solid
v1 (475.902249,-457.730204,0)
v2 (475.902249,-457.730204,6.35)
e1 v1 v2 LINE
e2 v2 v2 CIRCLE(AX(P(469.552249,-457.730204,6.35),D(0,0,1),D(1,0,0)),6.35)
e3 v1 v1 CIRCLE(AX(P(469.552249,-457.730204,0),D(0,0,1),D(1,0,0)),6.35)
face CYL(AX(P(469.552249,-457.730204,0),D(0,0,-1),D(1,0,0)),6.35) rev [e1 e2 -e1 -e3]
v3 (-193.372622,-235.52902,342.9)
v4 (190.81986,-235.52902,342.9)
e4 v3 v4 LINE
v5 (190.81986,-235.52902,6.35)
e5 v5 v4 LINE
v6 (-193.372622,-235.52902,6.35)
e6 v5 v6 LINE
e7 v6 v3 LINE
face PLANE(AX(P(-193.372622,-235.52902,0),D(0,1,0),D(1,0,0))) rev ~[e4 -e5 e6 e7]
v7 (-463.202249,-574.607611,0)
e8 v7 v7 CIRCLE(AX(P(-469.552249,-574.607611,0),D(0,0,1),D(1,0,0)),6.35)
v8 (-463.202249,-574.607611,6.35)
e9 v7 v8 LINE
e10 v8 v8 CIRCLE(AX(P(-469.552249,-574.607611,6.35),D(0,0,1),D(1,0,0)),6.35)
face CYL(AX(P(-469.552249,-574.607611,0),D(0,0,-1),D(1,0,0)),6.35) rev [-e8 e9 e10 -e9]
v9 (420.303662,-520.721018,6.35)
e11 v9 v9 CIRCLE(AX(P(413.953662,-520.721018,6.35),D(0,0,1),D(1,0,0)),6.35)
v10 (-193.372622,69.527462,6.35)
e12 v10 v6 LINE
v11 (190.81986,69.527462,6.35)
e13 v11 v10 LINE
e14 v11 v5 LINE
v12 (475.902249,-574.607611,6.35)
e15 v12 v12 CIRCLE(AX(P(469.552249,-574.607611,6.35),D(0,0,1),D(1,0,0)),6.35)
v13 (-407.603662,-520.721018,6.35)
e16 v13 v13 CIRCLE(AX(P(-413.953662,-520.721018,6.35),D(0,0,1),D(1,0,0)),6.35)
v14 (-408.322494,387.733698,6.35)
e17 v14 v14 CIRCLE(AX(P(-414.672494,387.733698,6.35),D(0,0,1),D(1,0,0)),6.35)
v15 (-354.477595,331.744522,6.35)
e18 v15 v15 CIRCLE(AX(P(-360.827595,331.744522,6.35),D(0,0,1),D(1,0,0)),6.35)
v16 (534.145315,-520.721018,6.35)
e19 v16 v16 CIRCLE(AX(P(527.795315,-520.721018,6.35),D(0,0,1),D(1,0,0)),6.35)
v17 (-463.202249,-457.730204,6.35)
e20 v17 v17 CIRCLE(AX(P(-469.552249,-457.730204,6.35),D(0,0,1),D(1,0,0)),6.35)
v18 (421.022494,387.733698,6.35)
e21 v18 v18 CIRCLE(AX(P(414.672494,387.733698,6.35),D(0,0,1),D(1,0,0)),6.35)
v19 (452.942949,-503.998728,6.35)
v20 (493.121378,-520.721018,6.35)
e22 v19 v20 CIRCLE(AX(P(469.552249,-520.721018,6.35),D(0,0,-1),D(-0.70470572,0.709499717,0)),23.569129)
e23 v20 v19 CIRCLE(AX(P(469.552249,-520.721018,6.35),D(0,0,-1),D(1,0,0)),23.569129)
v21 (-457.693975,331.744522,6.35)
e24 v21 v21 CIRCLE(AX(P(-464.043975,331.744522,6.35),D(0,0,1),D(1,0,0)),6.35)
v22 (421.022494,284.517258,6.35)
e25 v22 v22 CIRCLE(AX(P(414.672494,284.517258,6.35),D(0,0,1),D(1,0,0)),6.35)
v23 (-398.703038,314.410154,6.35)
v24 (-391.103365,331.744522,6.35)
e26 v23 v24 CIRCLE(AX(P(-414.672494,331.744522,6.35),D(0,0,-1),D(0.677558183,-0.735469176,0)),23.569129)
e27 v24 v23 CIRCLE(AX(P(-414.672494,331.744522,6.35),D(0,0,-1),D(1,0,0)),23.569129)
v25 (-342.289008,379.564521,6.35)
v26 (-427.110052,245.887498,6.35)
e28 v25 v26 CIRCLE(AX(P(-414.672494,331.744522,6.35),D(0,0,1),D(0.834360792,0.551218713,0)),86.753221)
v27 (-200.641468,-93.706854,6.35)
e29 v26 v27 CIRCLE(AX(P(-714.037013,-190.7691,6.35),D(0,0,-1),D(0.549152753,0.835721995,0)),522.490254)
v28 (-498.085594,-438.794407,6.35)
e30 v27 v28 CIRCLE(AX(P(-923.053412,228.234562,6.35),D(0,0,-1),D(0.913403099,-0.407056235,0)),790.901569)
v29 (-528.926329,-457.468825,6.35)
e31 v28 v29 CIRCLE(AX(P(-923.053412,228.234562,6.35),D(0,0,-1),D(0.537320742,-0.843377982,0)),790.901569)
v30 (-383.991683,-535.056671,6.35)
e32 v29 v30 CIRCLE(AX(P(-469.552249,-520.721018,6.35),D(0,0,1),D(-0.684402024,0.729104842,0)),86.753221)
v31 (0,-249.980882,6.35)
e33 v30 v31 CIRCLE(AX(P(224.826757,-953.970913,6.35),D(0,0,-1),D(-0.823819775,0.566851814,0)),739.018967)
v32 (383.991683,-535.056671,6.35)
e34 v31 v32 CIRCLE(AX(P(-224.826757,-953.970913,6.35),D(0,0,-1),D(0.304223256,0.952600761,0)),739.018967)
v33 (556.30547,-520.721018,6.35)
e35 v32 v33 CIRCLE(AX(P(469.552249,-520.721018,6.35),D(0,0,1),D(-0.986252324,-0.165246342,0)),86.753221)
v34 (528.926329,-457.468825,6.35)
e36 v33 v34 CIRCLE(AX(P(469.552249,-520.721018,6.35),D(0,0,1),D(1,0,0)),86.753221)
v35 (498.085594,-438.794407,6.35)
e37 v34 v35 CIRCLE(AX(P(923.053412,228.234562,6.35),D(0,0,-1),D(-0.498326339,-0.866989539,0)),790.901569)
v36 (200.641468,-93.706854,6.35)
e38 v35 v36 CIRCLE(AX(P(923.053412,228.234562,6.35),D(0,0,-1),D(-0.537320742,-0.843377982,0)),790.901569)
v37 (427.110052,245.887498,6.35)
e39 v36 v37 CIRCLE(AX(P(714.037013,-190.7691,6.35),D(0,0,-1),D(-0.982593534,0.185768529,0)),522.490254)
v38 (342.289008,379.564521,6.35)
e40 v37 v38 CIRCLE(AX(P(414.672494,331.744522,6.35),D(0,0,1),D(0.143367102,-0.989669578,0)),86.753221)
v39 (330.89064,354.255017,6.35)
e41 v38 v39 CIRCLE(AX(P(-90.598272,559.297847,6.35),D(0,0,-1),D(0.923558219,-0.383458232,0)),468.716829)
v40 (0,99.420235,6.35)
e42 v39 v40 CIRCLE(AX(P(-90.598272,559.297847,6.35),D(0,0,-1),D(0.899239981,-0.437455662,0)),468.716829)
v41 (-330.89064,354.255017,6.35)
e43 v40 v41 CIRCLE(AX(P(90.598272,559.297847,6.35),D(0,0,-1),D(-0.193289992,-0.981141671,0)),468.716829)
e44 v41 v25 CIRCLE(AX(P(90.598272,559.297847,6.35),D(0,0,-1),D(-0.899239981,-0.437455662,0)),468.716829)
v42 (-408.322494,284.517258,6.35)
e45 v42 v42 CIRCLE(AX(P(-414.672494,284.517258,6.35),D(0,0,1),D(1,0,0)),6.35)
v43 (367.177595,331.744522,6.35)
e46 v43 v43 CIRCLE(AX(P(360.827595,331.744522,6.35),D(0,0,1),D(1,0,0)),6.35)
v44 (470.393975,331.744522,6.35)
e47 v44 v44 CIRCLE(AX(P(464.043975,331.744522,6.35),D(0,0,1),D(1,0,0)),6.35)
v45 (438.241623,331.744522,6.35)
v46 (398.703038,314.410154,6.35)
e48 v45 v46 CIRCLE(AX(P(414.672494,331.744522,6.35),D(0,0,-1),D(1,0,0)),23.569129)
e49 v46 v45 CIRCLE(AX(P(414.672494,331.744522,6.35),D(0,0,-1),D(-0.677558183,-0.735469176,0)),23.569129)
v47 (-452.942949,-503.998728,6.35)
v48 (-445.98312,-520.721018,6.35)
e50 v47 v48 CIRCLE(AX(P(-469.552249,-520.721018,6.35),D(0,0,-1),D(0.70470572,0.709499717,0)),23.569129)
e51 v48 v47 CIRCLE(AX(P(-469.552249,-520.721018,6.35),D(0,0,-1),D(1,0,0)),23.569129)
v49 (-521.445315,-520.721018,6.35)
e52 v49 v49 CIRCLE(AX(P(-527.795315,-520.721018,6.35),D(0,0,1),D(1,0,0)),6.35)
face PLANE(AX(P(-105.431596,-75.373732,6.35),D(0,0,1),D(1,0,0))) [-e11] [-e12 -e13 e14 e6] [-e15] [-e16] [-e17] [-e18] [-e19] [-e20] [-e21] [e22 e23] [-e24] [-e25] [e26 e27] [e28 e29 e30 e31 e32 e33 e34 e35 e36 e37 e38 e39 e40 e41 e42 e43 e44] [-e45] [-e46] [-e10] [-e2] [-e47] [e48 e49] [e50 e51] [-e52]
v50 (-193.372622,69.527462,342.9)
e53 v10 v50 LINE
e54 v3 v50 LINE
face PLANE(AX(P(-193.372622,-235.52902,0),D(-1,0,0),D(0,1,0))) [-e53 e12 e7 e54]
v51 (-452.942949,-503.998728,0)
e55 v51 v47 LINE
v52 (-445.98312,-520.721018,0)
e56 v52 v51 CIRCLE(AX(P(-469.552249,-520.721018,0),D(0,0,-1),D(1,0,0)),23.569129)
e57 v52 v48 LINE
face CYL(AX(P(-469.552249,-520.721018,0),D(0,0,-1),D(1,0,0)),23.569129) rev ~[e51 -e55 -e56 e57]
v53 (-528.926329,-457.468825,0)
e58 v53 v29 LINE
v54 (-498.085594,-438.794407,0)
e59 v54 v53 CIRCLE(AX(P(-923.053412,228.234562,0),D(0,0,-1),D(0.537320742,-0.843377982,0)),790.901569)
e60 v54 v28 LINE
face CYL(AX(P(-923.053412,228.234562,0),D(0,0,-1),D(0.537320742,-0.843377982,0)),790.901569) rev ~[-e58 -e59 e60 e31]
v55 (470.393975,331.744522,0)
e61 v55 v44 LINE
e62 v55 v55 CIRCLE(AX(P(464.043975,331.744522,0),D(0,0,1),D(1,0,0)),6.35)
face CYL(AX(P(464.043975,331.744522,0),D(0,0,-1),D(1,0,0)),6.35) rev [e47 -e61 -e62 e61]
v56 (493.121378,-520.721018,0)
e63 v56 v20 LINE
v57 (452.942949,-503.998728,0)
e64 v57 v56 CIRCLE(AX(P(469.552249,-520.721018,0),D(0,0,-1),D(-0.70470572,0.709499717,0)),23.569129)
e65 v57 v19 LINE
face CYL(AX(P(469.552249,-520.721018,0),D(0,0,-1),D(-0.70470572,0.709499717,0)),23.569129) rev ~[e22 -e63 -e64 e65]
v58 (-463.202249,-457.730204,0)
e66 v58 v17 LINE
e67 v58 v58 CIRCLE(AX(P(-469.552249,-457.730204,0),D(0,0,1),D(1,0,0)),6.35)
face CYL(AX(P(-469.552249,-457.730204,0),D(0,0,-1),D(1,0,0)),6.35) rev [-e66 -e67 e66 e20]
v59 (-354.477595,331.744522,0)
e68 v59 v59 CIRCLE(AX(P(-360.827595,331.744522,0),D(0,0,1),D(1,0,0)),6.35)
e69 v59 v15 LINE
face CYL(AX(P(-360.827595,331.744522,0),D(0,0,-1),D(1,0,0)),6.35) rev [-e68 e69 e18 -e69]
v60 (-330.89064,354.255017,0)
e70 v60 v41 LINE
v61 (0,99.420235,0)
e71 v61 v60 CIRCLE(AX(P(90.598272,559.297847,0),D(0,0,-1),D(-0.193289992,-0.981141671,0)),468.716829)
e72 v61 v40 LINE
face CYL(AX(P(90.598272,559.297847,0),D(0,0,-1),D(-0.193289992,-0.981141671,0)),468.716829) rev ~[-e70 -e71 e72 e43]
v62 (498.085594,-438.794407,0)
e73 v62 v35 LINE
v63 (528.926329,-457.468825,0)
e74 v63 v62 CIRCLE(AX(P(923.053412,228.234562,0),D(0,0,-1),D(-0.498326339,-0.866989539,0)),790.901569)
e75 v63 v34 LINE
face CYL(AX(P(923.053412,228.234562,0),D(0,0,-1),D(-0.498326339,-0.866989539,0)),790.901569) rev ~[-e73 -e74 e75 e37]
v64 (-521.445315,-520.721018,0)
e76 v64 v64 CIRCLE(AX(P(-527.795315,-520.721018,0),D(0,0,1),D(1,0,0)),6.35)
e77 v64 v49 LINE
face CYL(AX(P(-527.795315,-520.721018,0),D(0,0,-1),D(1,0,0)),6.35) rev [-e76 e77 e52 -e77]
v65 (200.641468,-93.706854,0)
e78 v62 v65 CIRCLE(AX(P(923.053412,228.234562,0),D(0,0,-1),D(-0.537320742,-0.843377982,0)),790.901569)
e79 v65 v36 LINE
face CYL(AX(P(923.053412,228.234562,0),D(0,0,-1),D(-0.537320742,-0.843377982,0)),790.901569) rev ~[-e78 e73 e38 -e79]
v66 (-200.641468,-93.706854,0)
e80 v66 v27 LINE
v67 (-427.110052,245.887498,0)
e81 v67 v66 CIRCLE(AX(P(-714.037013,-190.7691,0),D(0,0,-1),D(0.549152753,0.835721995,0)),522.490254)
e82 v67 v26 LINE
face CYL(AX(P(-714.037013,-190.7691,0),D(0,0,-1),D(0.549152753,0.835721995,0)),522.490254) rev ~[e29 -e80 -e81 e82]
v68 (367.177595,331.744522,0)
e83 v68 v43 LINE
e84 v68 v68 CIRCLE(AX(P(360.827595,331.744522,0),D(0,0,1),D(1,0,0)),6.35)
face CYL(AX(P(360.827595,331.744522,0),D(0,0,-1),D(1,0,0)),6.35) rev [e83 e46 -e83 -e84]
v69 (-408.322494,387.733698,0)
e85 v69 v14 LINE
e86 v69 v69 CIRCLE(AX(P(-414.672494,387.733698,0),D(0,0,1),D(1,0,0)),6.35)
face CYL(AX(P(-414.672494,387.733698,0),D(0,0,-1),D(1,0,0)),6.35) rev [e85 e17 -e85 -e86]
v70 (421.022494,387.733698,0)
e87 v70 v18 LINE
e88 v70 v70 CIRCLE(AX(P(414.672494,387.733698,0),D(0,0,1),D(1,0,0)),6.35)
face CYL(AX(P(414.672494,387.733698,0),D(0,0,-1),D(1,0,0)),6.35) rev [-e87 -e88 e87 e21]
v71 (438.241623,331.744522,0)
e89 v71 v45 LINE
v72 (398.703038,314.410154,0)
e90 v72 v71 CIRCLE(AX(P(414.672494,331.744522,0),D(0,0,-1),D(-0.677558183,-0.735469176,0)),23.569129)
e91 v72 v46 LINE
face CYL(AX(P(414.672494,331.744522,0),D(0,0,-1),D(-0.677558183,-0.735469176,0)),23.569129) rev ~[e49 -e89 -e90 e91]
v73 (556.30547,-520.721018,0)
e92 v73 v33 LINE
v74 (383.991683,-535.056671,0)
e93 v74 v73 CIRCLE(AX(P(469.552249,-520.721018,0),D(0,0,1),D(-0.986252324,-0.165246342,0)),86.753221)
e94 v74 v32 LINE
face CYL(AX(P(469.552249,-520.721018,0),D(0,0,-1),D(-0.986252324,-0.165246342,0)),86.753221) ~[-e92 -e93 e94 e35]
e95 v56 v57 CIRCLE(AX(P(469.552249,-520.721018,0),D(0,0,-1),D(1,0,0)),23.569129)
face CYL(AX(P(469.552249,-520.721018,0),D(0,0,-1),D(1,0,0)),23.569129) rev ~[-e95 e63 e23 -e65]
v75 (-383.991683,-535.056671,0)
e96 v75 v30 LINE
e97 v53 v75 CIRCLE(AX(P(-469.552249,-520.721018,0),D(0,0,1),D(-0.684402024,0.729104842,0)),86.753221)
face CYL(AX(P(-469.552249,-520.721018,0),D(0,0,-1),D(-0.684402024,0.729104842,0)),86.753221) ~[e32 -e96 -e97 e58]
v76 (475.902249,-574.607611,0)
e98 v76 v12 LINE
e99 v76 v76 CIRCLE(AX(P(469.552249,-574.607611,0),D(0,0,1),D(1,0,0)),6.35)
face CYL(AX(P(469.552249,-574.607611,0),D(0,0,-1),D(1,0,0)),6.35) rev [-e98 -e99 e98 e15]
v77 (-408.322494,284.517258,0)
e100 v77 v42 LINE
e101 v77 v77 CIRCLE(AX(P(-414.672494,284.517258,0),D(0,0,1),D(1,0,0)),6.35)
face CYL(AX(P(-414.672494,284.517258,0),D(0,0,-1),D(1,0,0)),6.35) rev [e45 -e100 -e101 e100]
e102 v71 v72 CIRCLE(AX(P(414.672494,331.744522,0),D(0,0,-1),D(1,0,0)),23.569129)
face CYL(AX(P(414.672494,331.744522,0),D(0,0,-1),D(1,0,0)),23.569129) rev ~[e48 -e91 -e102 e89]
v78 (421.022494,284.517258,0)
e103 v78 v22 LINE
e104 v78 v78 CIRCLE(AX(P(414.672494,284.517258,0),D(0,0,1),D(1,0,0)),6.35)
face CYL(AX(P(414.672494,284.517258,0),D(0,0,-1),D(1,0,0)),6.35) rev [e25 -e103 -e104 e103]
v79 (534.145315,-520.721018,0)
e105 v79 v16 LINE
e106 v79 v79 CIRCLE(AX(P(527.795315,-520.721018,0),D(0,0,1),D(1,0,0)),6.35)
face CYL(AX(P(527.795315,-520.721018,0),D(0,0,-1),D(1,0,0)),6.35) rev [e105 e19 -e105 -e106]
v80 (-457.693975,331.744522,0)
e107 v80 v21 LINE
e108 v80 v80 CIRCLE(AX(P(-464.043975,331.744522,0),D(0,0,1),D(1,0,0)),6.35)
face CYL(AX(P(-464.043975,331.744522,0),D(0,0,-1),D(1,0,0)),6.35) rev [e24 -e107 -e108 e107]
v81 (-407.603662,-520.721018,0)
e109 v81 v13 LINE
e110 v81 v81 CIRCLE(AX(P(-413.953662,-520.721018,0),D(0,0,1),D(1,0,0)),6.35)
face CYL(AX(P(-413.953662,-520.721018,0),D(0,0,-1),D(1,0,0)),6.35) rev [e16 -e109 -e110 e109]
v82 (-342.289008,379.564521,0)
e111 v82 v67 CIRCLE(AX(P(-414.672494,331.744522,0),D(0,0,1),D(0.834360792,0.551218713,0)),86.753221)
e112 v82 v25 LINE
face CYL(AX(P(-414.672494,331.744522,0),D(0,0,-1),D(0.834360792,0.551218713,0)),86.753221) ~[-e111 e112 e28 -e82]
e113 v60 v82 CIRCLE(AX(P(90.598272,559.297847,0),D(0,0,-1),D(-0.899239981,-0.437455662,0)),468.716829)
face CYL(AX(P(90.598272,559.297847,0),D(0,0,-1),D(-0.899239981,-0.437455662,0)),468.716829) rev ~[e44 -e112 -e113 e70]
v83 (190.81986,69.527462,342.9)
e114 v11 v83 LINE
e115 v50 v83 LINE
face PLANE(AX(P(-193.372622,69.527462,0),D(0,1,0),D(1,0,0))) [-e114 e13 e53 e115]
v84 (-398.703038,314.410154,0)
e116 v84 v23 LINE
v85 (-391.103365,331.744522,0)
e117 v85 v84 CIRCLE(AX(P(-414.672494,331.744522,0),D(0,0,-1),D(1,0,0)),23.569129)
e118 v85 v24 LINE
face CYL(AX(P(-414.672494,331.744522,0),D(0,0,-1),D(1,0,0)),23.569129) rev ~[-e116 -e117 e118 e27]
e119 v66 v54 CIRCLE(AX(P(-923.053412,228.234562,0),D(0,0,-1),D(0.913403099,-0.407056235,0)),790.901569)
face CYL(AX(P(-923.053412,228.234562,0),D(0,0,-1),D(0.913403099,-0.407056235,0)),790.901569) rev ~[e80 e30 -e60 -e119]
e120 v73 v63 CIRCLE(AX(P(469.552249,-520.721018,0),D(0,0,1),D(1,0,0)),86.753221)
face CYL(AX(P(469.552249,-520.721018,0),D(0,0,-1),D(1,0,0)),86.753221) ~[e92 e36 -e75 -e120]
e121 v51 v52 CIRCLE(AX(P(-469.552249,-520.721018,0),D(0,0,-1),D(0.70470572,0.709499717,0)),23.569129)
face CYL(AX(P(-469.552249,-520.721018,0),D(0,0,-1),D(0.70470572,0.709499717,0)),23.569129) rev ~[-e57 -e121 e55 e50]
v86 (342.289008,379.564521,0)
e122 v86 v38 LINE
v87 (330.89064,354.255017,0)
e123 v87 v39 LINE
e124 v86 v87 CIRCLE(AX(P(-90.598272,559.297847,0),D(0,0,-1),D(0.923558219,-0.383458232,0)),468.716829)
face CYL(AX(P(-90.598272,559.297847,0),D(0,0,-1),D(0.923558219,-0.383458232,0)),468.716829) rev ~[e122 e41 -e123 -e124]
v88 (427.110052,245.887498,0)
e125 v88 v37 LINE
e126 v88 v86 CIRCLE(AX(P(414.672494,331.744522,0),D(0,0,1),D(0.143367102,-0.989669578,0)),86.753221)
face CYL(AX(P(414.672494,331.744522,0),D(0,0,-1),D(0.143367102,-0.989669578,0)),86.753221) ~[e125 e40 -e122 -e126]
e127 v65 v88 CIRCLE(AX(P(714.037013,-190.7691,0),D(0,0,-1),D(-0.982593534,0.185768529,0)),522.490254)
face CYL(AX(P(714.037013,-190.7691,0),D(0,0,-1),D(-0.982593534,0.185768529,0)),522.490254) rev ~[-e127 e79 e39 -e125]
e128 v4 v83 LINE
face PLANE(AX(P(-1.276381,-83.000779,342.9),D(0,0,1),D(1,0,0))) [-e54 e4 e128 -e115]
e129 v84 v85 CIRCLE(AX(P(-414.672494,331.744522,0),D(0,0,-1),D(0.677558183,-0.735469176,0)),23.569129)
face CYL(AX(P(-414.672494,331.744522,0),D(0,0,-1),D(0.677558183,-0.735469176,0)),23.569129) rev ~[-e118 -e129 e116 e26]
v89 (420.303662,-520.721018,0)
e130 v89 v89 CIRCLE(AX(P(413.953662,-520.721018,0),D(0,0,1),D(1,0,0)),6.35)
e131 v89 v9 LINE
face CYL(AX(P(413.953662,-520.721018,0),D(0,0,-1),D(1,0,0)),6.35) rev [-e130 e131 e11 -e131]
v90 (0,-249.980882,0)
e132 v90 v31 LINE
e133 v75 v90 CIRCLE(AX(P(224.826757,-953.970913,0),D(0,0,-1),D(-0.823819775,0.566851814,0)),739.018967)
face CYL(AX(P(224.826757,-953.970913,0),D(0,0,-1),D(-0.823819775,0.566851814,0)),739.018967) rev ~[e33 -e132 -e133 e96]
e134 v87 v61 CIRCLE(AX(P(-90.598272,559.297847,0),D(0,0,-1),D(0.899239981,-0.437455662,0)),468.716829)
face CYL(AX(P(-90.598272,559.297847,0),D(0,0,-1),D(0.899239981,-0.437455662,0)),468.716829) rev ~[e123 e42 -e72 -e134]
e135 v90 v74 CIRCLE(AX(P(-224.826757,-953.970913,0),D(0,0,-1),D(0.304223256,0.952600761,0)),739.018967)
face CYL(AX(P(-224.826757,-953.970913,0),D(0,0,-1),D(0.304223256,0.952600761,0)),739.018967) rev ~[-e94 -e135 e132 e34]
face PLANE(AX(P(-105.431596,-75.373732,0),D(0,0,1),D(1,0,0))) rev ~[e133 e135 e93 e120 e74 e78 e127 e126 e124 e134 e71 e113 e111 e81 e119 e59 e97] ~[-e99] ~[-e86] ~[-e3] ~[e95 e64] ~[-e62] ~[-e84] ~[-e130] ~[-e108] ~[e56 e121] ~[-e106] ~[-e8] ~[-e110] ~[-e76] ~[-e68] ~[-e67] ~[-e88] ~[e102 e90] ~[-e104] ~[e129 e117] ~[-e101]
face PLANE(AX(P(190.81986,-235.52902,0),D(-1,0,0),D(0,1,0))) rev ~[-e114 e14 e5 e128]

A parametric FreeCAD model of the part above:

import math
import FreeCAD as App
import Part
import Sketcher
Q = App.Units.Quantity


def add_polygon(sketch, points):
    """Adds a closed chain of lines whose ends are joined by coincident constraints."""
    first, n = sketch.GeometryCount, len(points)
    for a, b in zip(points, points[1:] + points[:1]):
        sketch.addGeometry(Part.LineSegment(App.Vector(*a, 0), App.Vector(*b, 0)), False)
    for i in range(n):
        sketch.addConstraint(Sketcher.Constraint("Coincident", first + i, 2, first + (i + 1) % n, 1))

doc = App.newDocument("Part")
body = doc.addObject("PartDesign::Body", "Body")

sketch1 = body.newObject("Sketcher::SketchObject", "Sketch")
sketch1.AttachmentSupport = (doc.getObject("XY_Plane"), [""])
sketch1.MapMode = "FlatFace"
sketch1.addGeometry(Part.ArcOfCircle(Part.Circle(App.Vector(469.552249, -520.721018, 0), App.Vector(0, 0, 1), 86.753221), math.radians(-170.488455), math.radians(0)), False)
sketch1.addGeometry(Part.ArcOfCircle(Part.Circle(App.Vector(469.552249, -520.721018, 0), App.Vector(0, 0, 1), 86.753221), math.radians(0), math.radians(46.811402)), False)
sketch1.addGeometry(Part.ArcOfCircle(Part.Circle(App.Vector(923.053412, 228.234562, 0), App.Vector(0, 0, 1), 790.901569), math.radians(-122.501436), math.radians(-119.889333)), False)
sketch1.addGeometry(Part.ArcOfCircle(Part.Circle(App.Vector(923.053412, 228.234562, 0), App.Vector(0, 0, 1), 790.901569), math.radians(-155.979954), math.radians(-122.501436)), False)
sketch1.addGeometry(Part.ArcOfCircle(Part.Circle(App.Vector(714.037013, -190.7691, 0), App.Vector(0, 0, 1), 522.490254), math.radians(123.308908), math.radians(169.294057)), False)
sketch1.addGeometry(Part.ArcOfCircle(Part.Circle(App.Vector(414.672494, 331.744522, 0), App.Vector(0, 0, 1), 86.753221), math.radians(-81.757267), math.radians(146.549338)), False)
sketch1.addGeometry(Part.ArcOfCircle(Part.Circle(App.Vector(-90.598272, 559.297847, 0), App.Vector(0, 0, 1), 468.716829), math.radians(-25.941655), math.radians(-22.548059)), False)
sketch1.addGeometry(Part.ArcOfCircle(Part.Circle(App.Vector(-90.598272, 559.297847, 0), App.Vector(0, 0, 1), 468.716829), math.radians(-78.855153), math.radians(-25.941655)), False)
sketch1.addGeometry(Part.ArcOfCircle(Part.Circle(App.Vector(90.598272, 559.297847, 0), App.Vector(0, 0, 1), 468.716829), math.radians(-154.058345), math.radians(-101.144847)), False)
sketch1.addGeometry(Part.ArcOfCircle(Part.Circle(App.Vector(90.598272, 559.297847, 0), App.Vector(0, 0, 1), 468.716829), math.radians(-157.451941), math.radians(-154.058345)), False)
sketch1.addGeometry(Part.ArcOfCircle(Part.Circle(App.Vector(-414.672494, 331.744522, 0), App.Vector(0, 0, 1), 86.753221), math.radians(33.450662), math.radians(261.757267)), False)
sketch1.addGeometry(Part.ArcOfCircle(Part.Circle(App.Vector(-714.037013, -190.7691, 0), App.Vector(0, 0, 1), 522.490254), math.radians(10.705943), math.radians(56.691092)), False)
sketch1.addGeometry(Part.ArcOfCircle(Part.Circle(App.Vector(-923.053412, 228.234562, 0), App.Vector(0, 0, 1), 790.901569), math.radians(-57.498564), math.radians(-24.020046)), False)
sketch1.addGeometry(Part.ArcOfCircle(Part.Circle(App.Vector(-923.053412, 228.234562, 0), App.Vector(0, 0, 1), 790.901569), math.radians(-60.110667), math.radians(-57.498564)), False)
sketch1.addGeometry(Part.ArcOfCircle(Part.Circle(App.Vector(-469.552249, -520.721018, 0), App.Vector(0, 0, 1), 86.753221), math.radians(133.188598), math.radians(350.488455)), False)
sketch1.addGeometry(Part.ArcOfCircle(Part.Circle(App.Vector(224.826757, -953.970913, 0), App.Vector(0, 0, 1), 739.018967), math.radians(107.711439), math.radians(145.469016)), False)
sketch1.addGeometry(Part.ArcOfCircle(Part.Circle(App.Vector(-224.826757, -953.970913, 0), App.Vector(0, 0, 1), 739.018967), math.radians(34.530984), math.radians(72.288561)), False)
sketch1.addGeometry(Part.Circle(App.Vector(-469.552249, -574.607611, 0), App.Vector(0, 0, 1), 6.35), False)
sketch1.addGeometry(Part.Circle(App.Vector(-527.795315, -520.721018, 0), App.Vector(0, 0, 1), 6.35), False)
sketch1.addGeometry(Part.ArcOfCircle(Part.Circle(App.Vector(-469.552249, -520.721018, 0), App.Vector(0, 0, 1), 23.569129), math.radians(0), math.radians(45.194226)), False)
sketch1.addGeometry(Part.ArcOfCircle(Part.Circle(App.Vector(-469.552249, -520.721018, 0), App.Vector(0, 0, 1), 23.569129), math.radians(45.194226), math.radians(360)), False)
sketch1.addGeometry(Part.Circle(App.Vector(-413.953662, -520.721018, 0), App.Vector(0, 0, 1), 6.35), False)
sketch1.addGeometry(Part.Circle(App.Vector(-469.552249, -457.730204, 0), App.Vector(0, 0, 1), 6.35), False)
sketch1.addGeometry(Part.Circle(App.Vector(-149.841468, -186.028168, 0), App.Vector(0, 0, 1), 12.7), False)
sketch1.addGeometry(Part.Circle(App.Vector(413.953662, -520.721018, 0), App.Vector(0, 0, 1), 6.35), False)
sketch1.addGeometry(Part.Circle(App.Vector(469.552249, -574.607611, 0), App.Vector(0, 0, 1), 6.35), False)
sketch1.addGeometry(Part.ArcOfCircle(Part.Circle(App.Vector(469.552249, -520.721018, 0), App.Vector(0, 0, 1), 23.569129), math.radians(0), math.radians(134.805774)), False)
sketch1.addGeometry(Part.ArcOfCircle(Part.Circle(App.Vector(469.552249, -520.721018, 0), App.Vector(0, 0, 1), 23.569129), math.radians(134.805774), math.radians(360)), False)
sketch1.addGeometry(Part.Circle(App.Vector(527.795315, -520.721018, 0), App.Vector(0, 0, 1), 6.35), False)
sketch1.addGeometry(Part.Circle(App.Vector(469.552249, -457.730204, 0), App.Vector(0, 0, 1), 6.35), False)
sketch1.addGeometry(Part.Circle(App.Vector(149.841468, -186.028168, 0), App.Vector(0, 0, 1), 12.7), False)
sketch1.addGeometry(Part.Circle(App.Vector(-149.841085, 35.583556, 0), App.Vector(0, 0, 1), 12.7), False)
sketch1.addGeometry(Part.Circle(App.Vector(-414.672494, 284.517258, 0), App.Vector(0, 0, 1), 6.35), False)
sketch1.addGeometry(Part.Circle(App.Vector(-464.043975, 331.744522, 0), App.Vector(0, 0, 1), 6.35), False)
sketch1.addGeometry(Part.ArcOfCircle(Part.Circle(App.Vector(-414.672494, 331.744522, 0), App.Vector(0, 0, 1), 23.569129), math.radians(0), math.radians(312.653124)), False)
sketch1.addGeometry(Part.ArcOfCircle(Part.Circle(App.Vector(-414.672494, 331.744522, 0), App.Vector(0, 0, 1), 23.569129), math.radians(-47.346876), math.radians(0)), False)
sketch1.addGeometry(Part.Circle(App.Vector(-414.672494, 387.733698, 0), App.Vector(0, 0, 1), 6.35), False)
sketch1.addGeometry(Part.Circle(App.Vector(-360.827595, 331.744522, 0), App.Vector(0, 0, 1), 6.35), False)
add_polygon(sketch1, [(-84.571876, 20.404676), (84.571876, 20.404676), (84.571876, -172.36717), (-84.571876, -172.36717)])
sketch1.addGeometry(Part.Circle(App.Vector(149.841085, 35.583556, 0), App.Vector(0, 0, 1), 12.7), False)
sketch1.addGeometry(Part.Circle(App.Vector(360.827595, 331.744522, 0), App.Vector(0, 0, 1), 6.35), False)
sketch1.addGeometry(Part.Circle(App.Vector(414.672494, 284.517258, 0), App.Vector(0, 0, 1), 6.35), False)
sketch1.addGeometry(Part.ArcOfCircle(Part.Circle(App.Vector(414.672494, 331.744522, 0), App.Vector(0, 0, 1), 23.569129), math.radians(0), math.radians(227.346876)), False)
sketch1.addGeometry(Part.ArcOfCircle(Part.Circle(App.Vector(414.672494, 331.744522, 0), App.Vector(0, 0, 1), 23.569129), math.radians(-132.653124), math.radians(0)), False)
sketch1.addGeometry(Part.Circle(App.Vector(464.043975, 331.744522, 0), App.Vector(0, 0, 1), 6.35), False)
sketch1.addGeometry(Part.Circle(App.Vector(414.672494, 387.733698, 0), App.Vector(0, 0, 1), 6.35), False)
sketch1.addConstraint(Sketcher.Constraint("Tangent", 0, 2, 1, 1))
sketch1.addConstraint(Sketcher.Constraint("Coincident", 1, 2, 2, 2))
sketch1.addConstraint(Sketcher.Constraint("Coincident", 2, 1, 3, 2))
sketch1.addConstraint(Sketcher.Constraint("Coincident", 3, 1, 4, 2))
sketch1.addConstraint(Sketcher.Constraint("Coincident", 4, 1, 5, 1))
sketch1.addConstraint(Sketcher.Constraint("Coincident", 5, 2, 6, 2))
sketch1.addConstraint(Sketcher.Constraint("Tangent", 6, 1, 7, 2))
sketch1.addConstraint(Sketcher.Constraint("Coincident", 7, 1, 8, 2))
sketch1.addConstraint(Sketcher.Constraint("Tangent", 8, 1, 9, 2))
sketch1.addConstraint(Sketcher.Constraint("Coincident", 9, 1, 10, 1))
sketch1.addConstraint(Sketcher.Constraint("Coincident", 10, 2, 11, 2))
sketch1.addConstraint(Sketcher.Constraint("Coincident", 11, 1, 12, 2))
sketch1.addConstraint(Sketcher.Constraint("Coincident", 12, 1, 13, 2))
sketch1.addConstraint(Sketcher.Constraint("Coincident", 13, 1, 14, 1))
sketch1.addConstraint(Sketcher.Constraint("Coincident", 14, 2, 15, 2))
sketch1.addConstraint(Sketcher.Constraint("Coincident", 15, 1, 16, 2))
sketch1.addConstraint(Sketcher.Constraint("Coincident", 16, 1, 0, 1))
sketch1.addConstraint(Sketcher.Constraint("Tangent", 19, 1, 20, 2))
sketch1.addConstraint(Sketcher.Constraint("Coincident", 20, 1, 19, 2))
sketch1.addConstraint(Sketcher.Constraint("Tangent", 26, 1, 27, 2))
sketch1.addConstraint(Sketcher.Constraint("Coincident", 27, 1, 26, 2))
sketch1.addConstraint(Sketcher.Constraint("Tangent", 34, 1, 35, 2))
sketch1.addConstraint(Sketcher.Constraint("Coincident", 35, 1, 34, 2))
sketch1.addConstraint(Sketcher.Constraint("Tangent", 45, 1, 46, 2))
sketch1.addConstraint(Sketcher.Constraint("Coincident", 46, 1, 45, 2))
sketch1.addConstraint(Sketcher.Constraint("Horizontal", 38))
sketch1.addConstraint(Sketcher.Constraint("Vertical", 39))
sketch1.addConstraint(Sketcher.Constraint("Horizontal", 40))
sketch1.addConstraint(Sketcher.Constraint("Vertical", 41))
sketch1.addConstraint(Sketcher.Constraint("Coincident", 3, 3, 2, 3))
sketch1.addConstraint(Sketcher.Constraint("Coincident", 13, 3, 12, 3))
sketch1.addConstraint(Sketcher.Constraint("Coincident", 19, 3, 14, 3))
sketch1.addConstraint(Sketcher.Constraint("Coincident", 26, 3, 0, 3))
sketch1.addConstraint(Sketcher.Constraint("Coincident", 34, 3, 10, 3))
sketch1.addConstraint(Sketcher.Constraint("Coincident", 45, 3, 5, 3))
sketch1.addConstraint(Sketcher.Constraint("Equal", 0, 1))
sketch1.addConstraint(Sketcher.Constraint("Equal", 1, 5))
sketch1.addConstraint(Sketcher.Constraint("Equal", 6, 7))
sketch1.addConstraint(Sketcher.Constraint("Equal", 7, 8))
sketch1.addConstraint(Sketcher.Constraint("Equal", 8, 9))
sketch1.addConstraint(Sketcher.Constraint("Equal", 5, 10))
sketch1.addConstraint(Sketcher.Constraint("Equal", 4, 11))
sketch1.addConstraint(Sketcher.Constraint("Equal", 3, 12))
sketch1.addConstraint(Sketcher.Constraint("Equal", 10, 14))
sketch1.addConstraint(Sketcher.Constraint("Equal", 15, 16))
sketch1.addConstraint(Sketcher.Constraint("Equal", 17, 18))
sketch1.addConstraint(Sketcher.Constraint("Equal", 18, 21))
sketch1.addConstraint(Sketcher.Constraint("Equal", 21, 22))
sketch1.addConstraint(Sketcher.Constraint("Equal", 22, 24))
sketch1.addConstraint(Sketcher.Constraint("Equal", 24, 25))
sketch1.addConstraint(Sketcher.Constraint("Equal", 20, 26))
sketch1.addConstraint(Sketcher.Constraint("Equal", 25, 28))
sketch1.addConstraint(Sketcher.Constraint("Equal", 28, 29))
sketch1.addConstraint(Sketcher.Constraint("Equal", 23, 30))
sketch1.addConstraint(Sketcher.Constraint("Equal", 30, 31))
sketch1.addConstraint(Sketcher.Constraint("Equal", 29, 32))
sketch1.addConstraint(Sketcher.Constraint("Equal", 32, 33))
sketch1.addConstraint(Sketcher.Constraint("Equal", 27, 34))
sketch1.addConstraint(Sketcher.Constraint("Equal", 33, 36))
sketch1.addConstraint(Sketcher.Constraint("Equal", 36, 37))
sketch1.addConstraint(Sketcher.Constraint("Equal", 31, 42))
sketch1.addConstraint(Sketcher.Constraint("Equal", 37, 43))
sketch1.addConstraint(Sketcher.Constraint("Equal", 43, 44))
sketch1.addConstraint(Sketcher.Constraint("Equal", 35, 45))
sketch1.addConstraint(Sketcher.Constraint("Equal", 44, 47))
sketch1.addConstraint(Sketcher.Constraint("Equal", 47, 48))
sketch1.addConstraint(Sketcher.Constraint("Symmetric", 6, 3, 8, 3, -2))
sketch1.addConstraint(Sketcher.Constraint("Symmetric", 5, 3, 10, 3, -2))
sketch1.addConstraint(Sketcher.Constraint("Symmetric", 4, 3, 11, 3, -2))
sketch1.addConstraint(Sketcher.Constraint("Symmetric", 2, 3, 12, 3, -2))
sketch1.addConstraint(Sketcher.Constraint("Symmetric", 0, 3, 14, 3, -2))
sketch1.addConstraint(Sketcher.Constraint("Symmetric", 15, 3, 16, 3, -2))
sketch1.addConstraint(Sketcher.Constraint("Symmetric", 21, 3, 24, 3, -2))
sketch1.addConstraint(Sketcher.Constraint("Symmetric", 17, 3, 25, 3, -2))
sketch1.addConstraint(Sketcher.Constraint("Symmetric", 18, 3, 28, 3, -2))
sketch1.addConstraint(Sketcher.Constraint("Symmetric", 22, 3, 29, 3, -2))
sketch1.addConstraint(Sketcher.Constraint("Symmetric", 23, 3, 30, 3, -2))
sketch1.addConstraint(Sketcher.Constraint("Symmetric", 31, 3, 42, 3, -2))
sketch1.addConstraint(Sketcher.Constraint("Symmetric", 37, 3, 43, 3, -2))
sketch1.addConstraint(Sketcher.Constraint("Symmetric", 32, 3, 44, 3, -2))
sketch1.addConstraint(Sketcher.Constraint("Symmetric", 33, 3, 47, 3, -2))
sketch1.addConstraint(Sketcher.Constraint("Symmetric", 36, 3, 48, 3, -2))
sketch1.addConstraint(Sketcher.Constraint("Horizontal", 14, 3, 18, 3))
sketch1.addConstraint(Sketcher.Constraint("Horizontal", 20, 3, 21, 3))
sketch1.addConstraint(Sketcher.Constraint("Horizontal", 10, 3, 33, 3))
sketch1.addConstraint(Sketcher.Constraint("Horizontal", 35, 3, 37, 3))
sketch1.addConstraint(Sketcher.Constraint("Horizontal", 28, 3, 0, 2))
sketch1.addConstraint(Sketcher.Constraint("Horizontal", 6, 1, 8, 1))
sketch1.addConstraint(Sketcher.Constraint("Horizontal", 2, 1, 12, 1))
sketch1.addConstraint(Sketcher.Constraint("Horizontal", 0, 2, 19, 1))
sketch1.addConstraint(Sketcher.Constraint("Horizontal", 19, 1, 26, 1))
sketch1.addConstraint(Sketcher.Constraint("Horizontal", 20, 1, 27, 1))
sketch1.addConstraint(Sketcher.Constraint("Horizontal", 47, 3, 34, 1))
sketch1.addConstraint(Sketcher.Constraint("Horizontal", 34, 1, 45, 1))
sketch1.addConstraint(Sketcher.Constraint("Horizontal", 35, 1, 46, 1))
sketch1.addConstraint(Sketcher.Constraint("Vertical", 14, 3, 17, 3))
sketch1.addConstraint(Sketcher.Constraint("Vertical", 20, 3, 22, 3))
sketch1.addConstraint(Sketcher.Constraint("Vertical", 10, 3, 32, 3))
sketch1.addConstraint(Sketcher.Constraint("Vertical", 35, 3, 36, 3))
sketch1.addConstraint(Sketcher.Constraint("Diameter", 23, Q("1 in")))
sketch1.addConstraint(Sketcher.Constraint("Diameter", 17, Q("0.5 in")))
sketch1.addConstraint(Sketcher.Constraint("Radius", 0, 86.753221))
sketch1.addConstraint(Sketcher.Constraint("Radius", 2, 790.901569))
sketch1.addConstraint(Sketcher.Constraint("Radius", 6, 468.716829))
sketch1.addConstraint(Sketcher.Constraint("Radius", 19, 23.569129))
sketch1.addConstraint(Sketcher.Constraint("Radius", 4, 522.490254))
sketch1.addConstraint(Sketcher.Constraint("Radius", 15, 739.018967))
sketch1.addConstraint(Sketcher.Constraint("DistanceX", 38, 1, 38, 2, 169.143751))
sketch1.addConstraint(Sketcher.Constraint("DistanceY", 4, 3, -1, 1, 190.7691))
sketch1.addConstraint(Sketcher.Constraint("DistanceY", 39, 2, 39, 1, 192.771846))
sketch1.addConstraint(Sketcher.Constraint("DistanceX", -1, 1, 0, 3, 469.552249))
sketch1.addConstraint(Sketcher.Constraint("DistanceY", 0, 3, -1, 1, 520.721018))
sketch1.addConstraint(Sketcher.Constraint("DistanceX", -1, 1, 2, 3, 923.053412))
sketch1.addConstraint(Sketcher.Constraint("DistanceY", -1, 1, 2, 3, 228.234562))
sketch1.addConstraint(Sketcher.Constraint("DistanceY", -1, 1, 5, 3, 331.744522))
sketch1.addConstraint(Sketcher.Constraint("DistanceY", 17, 3, -1, 1, 574.607611))
sketch1.addConstraint(Sketcher.Constraint("DistanceX", 21, 3, -1, 1, 413.953662))
sketch1.addConstraint(Sketcher.Constraint("DistanceX", 23, 3, -1, 1, 149.841468))
sketch1.addConstraint(Sketcher.Constraint("DistanceY", -1, 1, 32, 3, 284.517258))
sketch1.addConstraint(Sketcher.Constraint("DistanceX", -1, 1, 4, 1, 427.110052))
sketch1.addConstraint(Sketcher.Constraint("DistanceY", -1, 1, 5, 2, 379.564521))
sketch1.addConstraint(Sketcher.Constraint("DistanceX", -1, 1, 6, 1, 330.89064))
sketch1.addConstraint(Sketcher.Constraint("DistanceY", 14, 2, -1, 1, 535.056671))
sketch1.addConstraint(Sketcher.Constraint("DistanceY", 15, 1, -1, 1, 249.980882))
sketch1.addConstraint(Sketcher.Constraint("DistanceX", 20, 1, -1, 1, 452.942949))
sketch1.addConstraint(Sketcher.Constraint("DistanceY", 39, 2, -1, 1, 172.36717))
sketch1.addConstraint(Sketcher.Constraint("DistanceX", -1, 1, 4, 3, 714.037013))
sketch1.addConstraint(Sketcher.Constraint("DistanceX", 6, 3, -1, 1, 90.598272))
sketch1.addConstraint(Sketcher.Constraint("DistanceX", 18, 3, -1, 1, 527.795315))
sketch1.addConstraint(Sketcher.Constraint("DistanceY", 22, 3, -1, 1, 457.730204))
sketch1.addConstraint(Sketcher.Constraint("DistanceY", 23, 3, -1, 1, 186.028168))
sketch1.addConstraint(Sketcher.Constraint("DistanceX", 31, 3, -1, 1, 149.841085))
sketch1.addConstraint(Sketcher.Constraint("DistanceY", -1, 1, 31, 3, 35.583556))
sketch1.addConstraint(Sketcher.Constraint("DistanceX", 33, 3, -1, 1, 464.043975))
sketch1.addConstraint(Sketcher.Constraint("DistanceY", -1, 1, 36, 3, 387.733698))
sketch1.addConstraint(Sketcher.Constraint("DistanceX", 37, 3, -1, 1, 360.827595))
sketch1.addConstraint(Sketcher.Constraint("DistanceX", -1, 1, 2, 1, 498.085594))
sketch1.addConstraint(Sketcher.Constraint("DistanceX", 35, 1, -1, 1, 398.703038))
sketch1.addConstraint(Sketcher.Constraint("DistanceX", -1, 1, 38, 2, 84.571876))
pad1 = body.newObject("PartDesign::Pad", "Pad")
pad1.Profile = sketch1
pad1.Length = Q("0.25 in")

sketch2 = body.newObject("Sketcher::SketchObject", "Sketch001")
sketch2.AttachmentSupport = (doc.getObject("XY_Plane"), [""])
sketch2.MapMode = "FlatFace"
add_polygon(sketch2, [(-193.372622, 69.527462), (-193.372622, -235.52902), (190.81986, -235.52902), (190.81986, 69.527462)])
sketch2.addConstraint(Sketcher.Constraint("Vertical", 0))
sketch2.addConstraint(Sketcher.Constraint("Horizontal", 1))
sketch2.addConstraint(Sketcher.Constraint("Vertical", 2))
sketch2.addConstraint(Sketcher.Constraint("Horizontal", 3))
sketch2.addConstraint(Sketcher.Constraint("DistanceX", 1, 1, 1, 2, 384.192482))
sketch2.addConstraint(Sketcher.Constraint("DistanceY", 0, 2, 0, 1, 305.056483))
sketch2.addConstraint(Sketcher.Constraint("DistanceY", 0, 2, -1, 1, 235.52902))
sketch2.addConstraint(Sketcher.Constraint("DistanceX", -1, 1, 1, 2, 190.81986))
pad2 = body.newObject("PartDesign::Pad", "Pad001")
pad2.Profile = sketch2
pad2.Length = Q("13.5 in")

doc.recompute()
